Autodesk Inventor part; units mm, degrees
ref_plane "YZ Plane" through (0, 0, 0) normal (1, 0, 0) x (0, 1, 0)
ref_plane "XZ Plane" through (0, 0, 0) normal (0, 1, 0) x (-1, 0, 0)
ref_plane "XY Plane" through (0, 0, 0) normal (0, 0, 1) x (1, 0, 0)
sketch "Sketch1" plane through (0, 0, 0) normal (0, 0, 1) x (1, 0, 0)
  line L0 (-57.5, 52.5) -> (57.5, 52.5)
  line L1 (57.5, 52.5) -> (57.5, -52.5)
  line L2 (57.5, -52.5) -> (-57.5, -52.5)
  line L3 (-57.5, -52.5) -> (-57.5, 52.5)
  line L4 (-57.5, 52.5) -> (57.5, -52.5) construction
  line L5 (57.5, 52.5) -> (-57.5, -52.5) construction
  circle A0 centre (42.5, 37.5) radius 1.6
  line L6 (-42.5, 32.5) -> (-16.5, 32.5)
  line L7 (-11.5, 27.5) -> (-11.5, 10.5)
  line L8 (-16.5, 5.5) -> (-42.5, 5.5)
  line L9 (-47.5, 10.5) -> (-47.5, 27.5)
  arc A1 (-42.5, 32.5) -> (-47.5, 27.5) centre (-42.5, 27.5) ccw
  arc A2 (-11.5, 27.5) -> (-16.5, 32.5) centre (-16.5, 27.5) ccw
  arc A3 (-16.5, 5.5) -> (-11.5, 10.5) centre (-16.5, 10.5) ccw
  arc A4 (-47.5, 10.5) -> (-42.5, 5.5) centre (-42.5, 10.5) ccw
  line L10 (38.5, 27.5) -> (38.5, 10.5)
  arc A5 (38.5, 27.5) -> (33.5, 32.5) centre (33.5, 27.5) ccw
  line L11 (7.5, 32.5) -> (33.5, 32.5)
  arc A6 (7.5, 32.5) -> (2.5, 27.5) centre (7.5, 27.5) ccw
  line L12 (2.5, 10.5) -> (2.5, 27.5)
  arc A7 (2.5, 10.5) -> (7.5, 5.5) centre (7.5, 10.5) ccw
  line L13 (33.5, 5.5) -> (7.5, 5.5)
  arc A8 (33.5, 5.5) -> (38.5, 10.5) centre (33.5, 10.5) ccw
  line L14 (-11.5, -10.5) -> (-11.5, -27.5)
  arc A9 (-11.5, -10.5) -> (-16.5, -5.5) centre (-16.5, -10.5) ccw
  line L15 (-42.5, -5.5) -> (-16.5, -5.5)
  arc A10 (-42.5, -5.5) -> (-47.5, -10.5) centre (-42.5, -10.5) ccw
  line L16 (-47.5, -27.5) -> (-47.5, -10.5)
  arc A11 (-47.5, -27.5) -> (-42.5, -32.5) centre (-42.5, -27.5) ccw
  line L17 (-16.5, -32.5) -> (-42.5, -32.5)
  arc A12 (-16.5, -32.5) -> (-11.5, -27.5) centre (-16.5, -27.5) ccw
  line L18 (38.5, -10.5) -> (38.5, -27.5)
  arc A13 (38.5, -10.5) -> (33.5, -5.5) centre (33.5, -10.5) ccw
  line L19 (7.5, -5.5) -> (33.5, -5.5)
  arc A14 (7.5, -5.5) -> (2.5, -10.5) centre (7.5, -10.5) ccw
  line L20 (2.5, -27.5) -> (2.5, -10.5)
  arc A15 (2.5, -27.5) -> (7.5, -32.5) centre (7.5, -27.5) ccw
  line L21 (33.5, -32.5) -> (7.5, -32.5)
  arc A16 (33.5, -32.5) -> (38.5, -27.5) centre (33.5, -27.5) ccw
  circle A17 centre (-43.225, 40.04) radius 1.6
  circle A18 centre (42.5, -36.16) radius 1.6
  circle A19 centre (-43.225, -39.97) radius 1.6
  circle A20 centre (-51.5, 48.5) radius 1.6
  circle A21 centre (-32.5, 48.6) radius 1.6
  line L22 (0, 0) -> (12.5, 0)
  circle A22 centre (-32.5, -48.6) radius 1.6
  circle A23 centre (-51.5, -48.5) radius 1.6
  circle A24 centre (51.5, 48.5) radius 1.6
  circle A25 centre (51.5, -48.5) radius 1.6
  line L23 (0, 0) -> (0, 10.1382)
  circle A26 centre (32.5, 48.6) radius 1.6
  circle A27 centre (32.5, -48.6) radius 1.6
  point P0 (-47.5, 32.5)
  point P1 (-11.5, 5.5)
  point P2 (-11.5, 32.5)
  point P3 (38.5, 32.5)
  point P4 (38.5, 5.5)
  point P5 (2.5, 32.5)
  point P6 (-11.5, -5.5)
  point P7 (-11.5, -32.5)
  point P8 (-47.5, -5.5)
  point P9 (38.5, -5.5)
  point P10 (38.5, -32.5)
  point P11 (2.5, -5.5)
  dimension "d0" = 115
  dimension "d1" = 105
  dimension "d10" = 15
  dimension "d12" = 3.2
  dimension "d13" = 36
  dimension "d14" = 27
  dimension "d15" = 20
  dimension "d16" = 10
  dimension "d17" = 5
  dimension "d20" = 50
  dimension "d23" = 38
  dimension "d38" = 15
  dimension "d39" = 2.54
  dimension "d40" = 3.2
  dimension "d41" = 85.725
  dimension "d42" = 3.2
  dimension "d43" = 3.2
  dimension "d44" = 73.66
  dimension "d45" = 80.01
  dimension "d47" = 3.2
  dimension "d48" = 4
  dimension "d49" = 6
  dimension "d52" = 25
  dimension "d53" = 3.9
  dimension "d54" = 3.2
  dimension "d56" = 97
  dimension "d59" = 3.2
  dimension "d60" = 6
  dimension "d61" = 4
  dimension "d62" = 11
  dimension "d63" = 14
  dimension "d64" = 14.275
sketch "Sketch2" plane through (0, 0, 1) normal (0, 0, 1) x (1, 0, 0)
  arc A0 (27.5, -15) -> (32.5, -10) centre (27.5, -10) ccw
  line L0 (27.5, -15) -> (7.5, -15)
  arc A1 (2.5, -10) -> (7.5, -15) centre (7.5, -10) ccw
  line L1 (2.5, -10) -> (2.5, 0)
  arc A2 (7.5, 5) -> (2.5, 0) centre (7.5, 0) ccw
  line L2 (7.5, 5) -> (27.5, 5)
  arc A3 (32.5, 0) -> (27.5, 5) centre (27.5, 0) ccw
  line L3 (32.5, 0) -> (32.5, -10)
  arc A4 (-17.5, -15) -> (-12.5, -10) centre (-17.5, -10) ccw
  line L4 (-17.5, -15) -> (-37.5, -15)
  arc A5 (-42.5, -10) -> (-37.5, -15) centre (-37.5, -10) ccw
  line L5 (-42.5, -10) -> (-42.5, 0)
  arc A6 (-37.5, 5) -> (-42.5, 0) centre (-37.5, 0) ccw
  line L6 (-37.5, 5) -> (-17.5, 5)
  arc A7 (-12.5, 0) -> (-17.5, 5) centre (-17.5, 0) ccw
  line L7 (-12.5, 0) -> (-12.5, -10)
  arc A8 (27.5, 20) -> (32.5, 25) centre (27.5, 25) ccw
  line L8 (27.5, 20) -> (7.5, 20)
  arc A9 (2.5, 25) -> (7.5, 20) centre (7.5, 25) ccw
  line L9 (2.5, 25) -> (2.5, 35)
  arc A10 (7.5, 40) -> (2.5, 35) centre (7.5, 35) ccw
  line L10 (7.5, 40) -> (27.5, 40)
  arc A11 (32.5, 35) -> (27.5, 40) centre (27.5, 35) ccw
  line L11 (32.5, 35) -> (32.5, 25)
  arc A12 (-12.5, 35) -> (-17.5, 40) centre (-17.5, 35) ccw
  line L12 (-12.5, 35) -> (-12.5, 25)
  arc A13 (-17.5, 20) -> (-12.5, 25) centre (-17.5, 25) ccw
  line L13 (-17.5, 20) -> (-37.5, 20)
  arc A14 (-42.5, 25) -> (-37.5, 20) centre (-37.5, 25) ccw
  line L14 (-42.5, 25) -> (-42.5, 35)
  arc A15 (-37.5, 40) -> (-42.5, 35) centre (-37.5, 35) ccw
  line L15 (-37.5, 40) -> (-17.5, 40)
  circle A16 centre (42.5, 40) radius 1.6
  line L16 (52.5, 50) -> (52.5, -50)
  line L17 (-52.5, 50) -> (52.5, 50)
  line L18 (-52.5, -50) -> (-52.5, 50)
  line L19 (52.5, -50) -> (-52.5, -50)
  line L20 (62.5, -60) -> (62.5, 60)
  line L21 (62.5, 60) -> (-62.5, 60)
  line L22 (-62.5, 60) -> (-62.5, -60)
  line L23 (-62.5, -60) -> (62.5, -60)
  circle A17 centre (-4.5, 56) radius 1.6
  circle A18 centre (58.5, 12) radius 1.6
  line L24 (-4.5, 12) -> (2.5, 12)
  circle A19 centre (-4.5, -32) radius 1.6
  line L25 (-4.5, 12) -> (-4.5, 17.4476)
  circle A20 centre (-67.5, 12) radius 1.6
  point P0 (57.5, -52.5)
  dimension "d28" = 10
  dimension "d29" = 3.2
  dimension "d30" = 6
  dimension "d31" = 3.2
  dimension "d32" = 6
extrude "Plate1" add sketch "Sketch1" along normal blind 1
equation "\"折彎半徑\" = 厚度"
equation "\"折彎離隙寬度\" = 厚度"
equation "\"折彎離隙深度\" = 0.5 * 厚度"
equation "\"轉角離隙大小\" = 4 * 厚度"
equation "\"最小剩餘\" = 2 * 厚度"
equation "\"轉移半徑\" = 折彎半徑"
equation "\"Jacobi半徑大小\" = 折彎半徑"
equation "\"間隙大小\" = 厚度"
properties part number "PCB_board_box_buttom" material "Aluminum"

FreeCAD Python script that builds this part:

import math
import FreeCAD as App
import Part
import Sketcher


def add_polygon(sketch, points):
    """Adds a closed chain of lines whose ends are joined by coincident constraints."""
    first, n = sketch.GeometryCount, len(points)
    for a, b in zip(points, points[1:] + points[:1]):
        sketch.addGeometry(Part.LineSegment(App.Vector(*a, 0), App.Vector(*b, 0)), False)
    for i in range(n):
        sketch.addConstraint(Sketcher.Constraint("Coincident", first + i, 2, first + (i + 1) % n, 1))

doc = App.newDocument("Part")
body = doc.addObject("PartDesign::Body", "Body")

# Sketch on XY plane
sketch1 = body.newObject("Sketcher::SketchObject", "Sketch")
sketch1.AttachmentSupport = (doc.getObject("XY_Plane"), [""])
sketch1.MapMode = "FlatFace"
add_polygon(sketch1, [(57.5, 52.5), (-57.5, 52.5), (-57.5, -52.5), (57.5, -52.5)])  # lines 0-3
sketch1.addGeometry(Part.Circle(App.Vector(-51.5, -48.5, 0), App.Vector(0, 0, 1), 1.6), False)  # 4
sketch1.addGeometry(Part.Circle(App.Vector(-43.2, -40, 0), App.Vector(0, 0, 1), 1.6), False)  # 5
sketch1.addGeometry(Part.Circle(App.Vector(-32.5, -48.6, 0), App.Vector(0, 0, 1), 1.6), False)  # 6
sketch1.addGeometry(Part.ArcOfCircle(Part.Circle(App.Vector(-16.5, -10.5, 0), App.Vector(0, 0, 1), 5), math.radians(0), math.radians(90)), False)  # 7
sketch1.addGeometry(Part.LineSegment(App.Vector(-11.5, -10.5, 0), App.Vector(-11.5, -27.5, 0)), False)  # 8
sketch1.addGeometry(Part.ArcOfCircle(Part.Circle(App.Vector(-16.5, -27.5, 0), App.Vector(0, 0, 1), 5), math.radians(-90), math.radians(0)), False)  # 9
sketch1.addGeometry(Part.LineSegment(App.Vector(-16.5, -32.5, 0), App.Vector(-42.5, -32.5, 0)), False)  # 10
sketch1.addGeometry(Part.ArcOfCircle(Part.Circle(App.Vector(-42.5, -27.5, 0), App.Vector(0, 0, 1), 5), math.radians(180), math.radians(270)), False)  # 11
sketch1.addGeometry(Part.LineSegment(App.Vector(-47.5, -27.5, 0), App.Vector(-47.5, -10.5, 0)), False)  # 12
sketch1.addGeometry(Part.ArcOfCircle(Part.Circle(App.Vector(-42.5, -10.5, 0), App.Vector(0, 0, 1), 5), math.radians(90), math.radians(180)), False)  # 13
sketch1.addGeometry(Part.LineSegment(App.Vector(-42.5, -5.5, 0), App.Vector(-16.5, -5.5, 0)), False)  # 14
sketch1.addGeometry(Part.Circle(App.Vector(32.5, -48.6, 0), App.Vector(0, 0, 1), 1.6), False)  # 15
sketch1.addGeometry(Part.Circle(App.Vector(51.5, -48.5, 0), App.Vector(0, 0, 1), 1.6), False)  # 16
sketch1.addGeometry(Part.Circle(App.Vector(42.5, -36.2, 0), App.Vector(0, 0, 1), 1.6), False)  # 17
sketch1.addGeometry(Part.ArcOfCircle(Part.Circle(App.Vector(33.5, -10.5, 0), App.Vector(0, 0, 1), 5), math.radians(0), math.radians(90)), False)  # 18
sketch1.addGeometry(Part.LineSegment(App.Vector(38.5, -10.5, 0), App.Vector(38.5, -27.5, 0)), False)  # 19
sketch1.addGeometry(Part.ArcOfCircle(Part.Circle(App.Vector(33.5, -27.5, 0), App.Vector(0, 0, 1), 5), math.radians(-90), math.radians(0)), False)  # 20
sketch1.addGeometry(Part.LineSegment(App.Vector(33.5, -32.5, 0), App.Vector(7.5, -32.5, 0)), False)  # 21
sketch1.addGeometry(Part.ArcOfCircle(Part.Circle(App.Vector(7.5, -27.5, 0), App.Vector(0, 0, 1), 5), math.radians(180), math.radians(270)), False)  # 22
sketch1.addGeometry(Part.LineSegment(App.Vector(2.5, -27.5, 0), App.Vector(2.5, -10.5, 0)), False)  # 23
sketch1.addGeometry(Part.ArcOfCircle(Part.Circle(App.Vector(7.5, -10.5, 0), App.Vector(0, 0, 1), 5), math.radians(90), math.radians(180)), False)  # 24
sketch1.addGeometry(Part.LineSegment(App.Vector(7.5, -5.5, 0), App.Vector(33.5, -5.5, 0)), False)  # 25
sketch1.addGeometry(Part.ArcOfCircle(Part.Circle(App.Vector(-42.5, 27.5, 0), App.Vector(0, 0, 1), 5), math.radians(90), math.radians(180)), False)  # 26
sketch1.addGeometry(Part.LineSegment(App.Vector(-42.5, 32.5, 0), App.Vector(-16.5, 32.5, 0)), False)  # 27
sketch1.addGeometry(Part.ArcOfCircle(Part.Circle(App.Vector(-16.5, 27.5, 0), App.Vector(0, 0, 1), 5), math.radians(0), math.radians(90)), False)  # 28
sketch1.addGeometry(Part.LineSegment(App.Vector(-11.5, 27.5, 0), App.Vector(-11.5, 10.5, 0)), False)  # 29
sketch1.addGeometry(Part.ArcOfCircle(Part.Circle(App.Vector(-16.5, 10.5, 0), App.Vector(0, 0, 1), 5), math.radians(-90), math.radians(0)), False)  # 30
sketch1.addGeometry(Part.LineSegment(App.Vector(-16.5, 5.5, 0), App.Vector(-42.5, 5.5, 0)), False)  # 31
sketch1.addGeometry(Part.ArcOfCircle(Part.Circle(App.Vector(-42.5, 10.5, 0), App.Vector(0, 0, 1), 5), math.radians(180), math.radians(270)), False)  # 32
sketch1.addGeometry(Part.LineSegment(App.Vector(-47.5, 10.5, 0), App.Vector(-47.5, 27.5, 0)), False)  # 33
sketch1.addGeometry(Part.Circle(App.Vector(-43.2, 40, 0), App.Vector(0, 0, 1), 1.6), False)  # 34
sketch1.addGeometry(Part.Circle(App.Vector(-51.5, 48.5, 0), App.Vector(0, 0, 1), 1.6), False)  # 35
sketch1.addGeometry(Part.Circle(App.Vector(-32.5, 48.6, 0), App.Vector(0, 0, 1), 1.6), False)  # 36
sketch1.addGeometry(Part.ArcOfCircle(Part.Circle(App.Vector(33.5, 27.5, 0), App.Vector(0, 0, 1), 5), math.radians(0), math.radians(90)), False)  # 37
sketch1.addGeometry(Part.LineSegment(App.Vector(38.5, 27.5, 0), App.Vector(38.5, 10.5, 0)), False)  # 38
sketch1.addGeometry(Part.ArcOfCircle(Part.Circle(App.Vector(33.5, 10.5, 0), App.Vector(0, 0, 1), 5), math.radians(-90), math.radians(0)), False)  # 39
sketch1.addGeometry(Part.LineSegment(App.Vector(33.5, 5.5, 0), App.Vector(7.5, 5.5, 0)), False)  # 40
sketch1.addGeometry(Part.ArcOfCircle(Part.Circle(App.Vector(7.5, 10.5, 0), App.Vector(0, 0, 1), 5), math.radians(180), math.radians(270)), False)  # 41
sketch1.addGeometry(Part.LineSegment(App.Vector(2.5, 10.5, 0), App.Vector(2.5, 27.5, 0)), False)  # 42
sketch1.addGeometry(Part.ArcOfCircle(Part.Circle(App.Vector(7.5, 27.5, 0), App.Vector(0, 0, 1), 5), math.radians(90), math.radians(180)), False)  # 43
sketch1.addGeometry(Part.LineSegment(App.Vector(7.5, 32.5, 0), App.Vector(33.5, 32.5, 0)), False)  # 44
sketch1.addGeometry(Part.Circle(App.Vector(42.5, 37.5, 0), App.Vector(0, 0, 1), 1.6), False)  # 45
sketch1.addGeometry(Part.Circle(App.Vector(32.5, 48.6, 0), App.Vector(0, 0, 1), 1.6), False)  # 46
sketch1.addGeometry(Part.Circle(App.Vector(51.5, 48.5, 0), App.Vector(0, 0, 1), 1.6), False)  # 47
sketch1.addConstraint(Sketcher.Constraint("Tangent", 7, 1, 8, 1))
sketch1.addConstraint(Sketcher.Constraint("Tangent", 8, 2, 9, 2))
sketch1.addConstraint(Sketcher.Constraint("Tangent", 9, 1, 10, 1))
sketch1.addConstraint(Sketcher.Constraint("Tangent", 10, 2, 11, 2))
sketch1.addConstraint(Sketcher.Constraint("Tangent", 11, 1, 12, 1))
sketch1.addConstraint(Sketcher.Constraint("Tangent", 12, 2, 13, 2))
sketch1.addConstraint(Sketcher.Constraint("Tangent", 13, 1, 14, 1))
sketch1.addConstraint(Sketcher.Constraint("Tangent", 14, 2, 7, 2))
sketch1.addConstraint(Sketcher.Constraint("Tangent", 18, 1, 19, 1))
sketch1.addConstraint(Sketcher.Constraint("Tangent", 19, 2, 20, 2))
sketch1.addConstraint(Sketcher.Constraint("Tangent", 20, 1, 21, 1))
sketch1.addConstraint(Sketcher.Constraint("Tangent", 21, 2, 22, 2))
sketch1.addConstraint(Sketcher.Constraint("Tangent", 22, 1, 23, 1))
sketch1.addConstraint(Sketcher.Constraint("Tangent", 23, 2, 24, 2))
sketch1.addConstraint(Sketcher.Constraint("Tangent", 24, 1, 25, 1))
sketch1.addConstraint(Sketcher.Constraint("Tangent", 25, 2, 18, 2))
sketch1.addConstraint(Sketcher.Constraint("Tangent", 26, 1, 27, 1))
sketch1.addConstraint(Sketcher.Constraint("Tangent", 27, 2, 28, 2))
sketch1.addConstraint(Sketcher.Constraint("Tangent", 28, 1, 29, 1))
sketch1.addConstraint(Sketcher.Constraint("Tangent", 29, 2, 30, 2))
sketch1.addConstraint(Sketcher.Constraint("Tangent", 30, 1, 31, 1))
sketch1.addConstraint(Sketcher.Constraint("Tangent", 31, 2, 32, 2))
sketch1.addConstraint(Sketcher.Constraint("Tangent", 32, 1, 33, 1))
sketch1.addConstraint(Sketcher.Constraint("Tangent", 33, 2, 26, 2))
sketch1.addConstraint(Sketcher.Constraint("Tangent", 37, 1, 38, 1))
sketch1.addConstraint(Sketcher.Constraint("Tangent", 38, 2, 39, 2))
sketch1.addConstraint(Sketcher.Constraint("Tangent", 39, 1, 40, 1))
sketch1.addConstraint(Sketcher.Constraint("Tangent", 40, 2, 41, 2))
sketch1.addConstraint(Sketcher.Constraint("Tangent", 41, 1, 42, 1))
sketch1.addConstraint(Sketcher.Constraint("Tangent", 42, 2, 43, 2))
sketch1.addConstraint(Sketcher.Constraint("Tangent", 43, 1, 44, 1))
sketch1.addConstraint(Sketcher.Constraint("Tangent", 44, 2, 37, 2))
sketch1.addConstraint(Sketcher.Constraint("Horizontal", 0))
sketch1.addConstraint(Sketcher.Constraint("Vertical", 1))
sketch1.addConstraint(Sketcher.Constraint("Horizontal", 2))
sketch1.addConstraint(Sketcher.Constraint("Vertical", 3))
sketch1.addConstraint(Sketcher.Constraint("Vertical", 8))
sketch1.addConstraint(Sketcher.Constraint("Horizontal", 10))
sketch1.addConstraint(Sketcher.Constraint("Vertical", 12))
sketch1.addConstraint(Sketcher.Constraint("Horizontal", 14))
sketch1.addConstraint(Sketcher.Constraint("Vertical", 19))
sketch1.addConstraint(Sketcher.Constraint("Horizontal", 21))
sketch1.addConstraint(Sketcher.Constraint("Vertical", 23))
sketch1.addConstraint(Sketcher.Constraint("Horizontal", 25))
sketch1.addConstraint(Sketcher.Constraint("Horizontal", 27))
sketch1.addConstraint(Sketcher.Constraint("Vertical", 29))
sketch1.addConstraint(Sketcher.Constraint("Horizontal", 31))
sketch1.addConstraint(Sketcher.Constraint("Vertical", 33))
sketch1.addConstraint(Sketcher.Constraint("Vertical", 38))
sketch1.addConstraint(Sketcher.Constraint("Horizontal", 40))
sketch1.addConstraint(Sketcher.Constraint("Vertical", 42))
sketch1.addConstraint(Sketcher.Constraint("Horizontal", 44))
sketch1.addConstraint(Sketcher.Constraint("Equal", 4, 5))
sketch1.addConstraint(Sketcher.Constraint("Equal", 5, 6))
sketch1.addConstraint(Sketcher.Constraint("Equal", 7, 9))
sketch1.addConstraint(Sketcher.Constraint("Equal", 9, 11))
sketch1.addConstraint(Sketcher.Constraint("Equal", 11, 13))
sketch1.addConstraint(Sketcher.Constraint("Equal", 6, 15))
sketch1.addConstraint(Sketcher.Constraint("Equal", 15, 16))
sketch1.addConstraint(Sketcher.Constraint("Equal", 16, 17))
sketch1.addConstraint(Sketcher.Constraint("Equal", 13, 18))
sketch1.addConstraint(Sketcher.Constraint("Equal", 18, 20))
sketch1.addConstraint(Sketcher.Constraint("Equal", 20, 22))
sketch1.addConstraint(Sketcher.Constraint("Equal", 22, 24))
sketch1.addConstraint(Sketcher.Constraint("Equal", 24, 26))
sketch1.addConstraint(Sketcher.Constraint("Equal", 26, 28))
sketch1.addConstraint(Sketcher.Constraint("Equal", 28, 30))
sketch1.addConstraint(Sketcher.Constraint("Equal", 30, 32))
sketch1.addConstraint(Sketcher.Constraint("Equal", 17, 34))
sketch1.addConstraint(Sketcher.Constraint("Equal", 34, 35))
sketch1.addConstraint(Sketcher.Constraint("Equal", 35, 36))
sketch1.addConstraint(Sketcher.Constraint("Equal", 32, 37))
sketch1.addConstraint(Sketcher.Constraint("Equal", 37, 39))
sketch1.addConstraint(Sketcher.Constraint("Equal", 39, 41))
sketch1.addConstraint(Sketcher.Constraint("Equal", 41, 43))
sketch1.addConstraint(Sketcher.Constraint("Equal", 36, 45))
sketch1.addConstraint(Sketcher.Constraint("Equal", 45, 46))
sketch1.addConstraint(Sketcher.Constraint("Equal", 46, 47))
sketch1.addConstraint(Sketcher.Constraint("Symmetric", 16, 3, 35, 3, -1, 1))
sketch1.addConstraint(Sketcher.Constraint("Symmetric", 15, 3, 36, 3, -1, 1))
sketch1.addConstraint(Sketcher.Constraint("Symmetric", 6, 3, 46, 3, -1, 1))
sketch1.addConstraint(Sketcher.Constraint("Symmetric", 4, 3, 47, 3, -1, 1))
sketch1.addConstraint(Sketcher.Constraint("Symmetric", 0, 2, 2, 2, -1, 1))
sketch1.addConstraint(Sketcher.Constraint("Symmetric", 6, 3, 15, 3, -2))
sketch1.addConstraint(Sketcher.Constraint("Symmetric", 4, 3, 16, 3, -2))
sketch1.addConstraint(Sketcher.Constraint("Symmetric", 11, 3, 26, 3, -1))
sketch1.addConstraint(Sketcher.Constraint("Symmetric", 7, 3, 30, 3, -1))
sketch1.addConstraint(Sketcher.Constraint("Symmetric", 20, 3, 37, 3, -1))
sketch1.addConstraint(Sketcher.Constraint("Symmetric", 24, 3, 41, 3, -1))
sketch1.addConstraint(Sketcher.Constraint("Horizontal", 13, 3, 18, 3))
sketch1.addConstraint(Sketcher.Constraint("Horizontal", 11, 3, 20, 3))
sketch1.addConstraint(Sketcher.Constraint("Vertical", 5, 3, 34, 3))
sketch1.addConstraint(Sketcher.Constraint("Vertical", 17, 3, 45, 3))
sketch1.addConstraint(Sketcher.Constraint("Equal", 14, 21))
sketch1.addConstraint(Sketcher.Constraint("Radius", 7, 5.0))
sketch1.addConstraint(Sketcher.Constraint("Diameter", 4, 3.2))
sketch1.addConstraint(Sketcher.Constraint("DistanceX", 0, 2, 0, 1, 115.0))
sketch1.addConstraint(Sketcher.Constraint("DistanceY", 1, 2, 1, 1, 105.0))
sketch1.addConstraint(Sketcher.Constraint("DistanceX", 10, 2, 10, 1, 26.0))
sketch1.addConstraint(Sketcher.Constraint("DistanceY", 8, 2, 8, 1, 17.0))
sketch1.addConstraint(Sketcher.Constraint("DistanceX", 4, 3, -1, 1, 51.5))
sketch1.addConstraint(Sketcher.Constraint("DistanceY", 4, 3, -1, 1, 48.5))
sketch1.addConstraint(Sketcher.Constraint("DistanceX", 6, 3, -1, 1, 32.5))
sketch1.addConstraint(Sketcher.Constraint("DistanceY", 6, 3, -1, 1, 48.6))
sketch1.addConstraint(Sketcher.Constraint("DistanceX", 7, 3, -1, 1, 16.5))
sketch1.addConstraint(Sketcher.Constraint("DistanceY", 7, 3, -1, 1, 10.5))
sketch1.addConstraint(Sketcher.Constraint("DistanceX", -1, 1, 17, 3, 42.5))
sketch1.addConstraint(Sketcher.Constraint("DistanceX", -1, 1, 18, 3, 33.5))
sketch1.addConstraint(Sketcher.Constraint("DistanceY", -1, 1, 45, 3, 37.5))
sketch1.addConstraint(Sketcher.Constraint("DistanceY", 5, 3, -1, 1, 39.97))
sketch1.addConstraint(Sketcher.Constraint("DistanceY", 17, 3, -1, 1, 36.16))
sketch1.addConstraint(Sketcher.Constraint("DistanceY", -1, 1, 34, 3, 40.04))
sketch1.addConstraint(Sketcher.Constraint("DistanceX", 5, 3, -1, 1, 43.225))
pad1 = body.newObject("PartDesign::Pad", "Pad")
pad1.Profile = sketch1
pad1.Length = 1

doc.recompute()
